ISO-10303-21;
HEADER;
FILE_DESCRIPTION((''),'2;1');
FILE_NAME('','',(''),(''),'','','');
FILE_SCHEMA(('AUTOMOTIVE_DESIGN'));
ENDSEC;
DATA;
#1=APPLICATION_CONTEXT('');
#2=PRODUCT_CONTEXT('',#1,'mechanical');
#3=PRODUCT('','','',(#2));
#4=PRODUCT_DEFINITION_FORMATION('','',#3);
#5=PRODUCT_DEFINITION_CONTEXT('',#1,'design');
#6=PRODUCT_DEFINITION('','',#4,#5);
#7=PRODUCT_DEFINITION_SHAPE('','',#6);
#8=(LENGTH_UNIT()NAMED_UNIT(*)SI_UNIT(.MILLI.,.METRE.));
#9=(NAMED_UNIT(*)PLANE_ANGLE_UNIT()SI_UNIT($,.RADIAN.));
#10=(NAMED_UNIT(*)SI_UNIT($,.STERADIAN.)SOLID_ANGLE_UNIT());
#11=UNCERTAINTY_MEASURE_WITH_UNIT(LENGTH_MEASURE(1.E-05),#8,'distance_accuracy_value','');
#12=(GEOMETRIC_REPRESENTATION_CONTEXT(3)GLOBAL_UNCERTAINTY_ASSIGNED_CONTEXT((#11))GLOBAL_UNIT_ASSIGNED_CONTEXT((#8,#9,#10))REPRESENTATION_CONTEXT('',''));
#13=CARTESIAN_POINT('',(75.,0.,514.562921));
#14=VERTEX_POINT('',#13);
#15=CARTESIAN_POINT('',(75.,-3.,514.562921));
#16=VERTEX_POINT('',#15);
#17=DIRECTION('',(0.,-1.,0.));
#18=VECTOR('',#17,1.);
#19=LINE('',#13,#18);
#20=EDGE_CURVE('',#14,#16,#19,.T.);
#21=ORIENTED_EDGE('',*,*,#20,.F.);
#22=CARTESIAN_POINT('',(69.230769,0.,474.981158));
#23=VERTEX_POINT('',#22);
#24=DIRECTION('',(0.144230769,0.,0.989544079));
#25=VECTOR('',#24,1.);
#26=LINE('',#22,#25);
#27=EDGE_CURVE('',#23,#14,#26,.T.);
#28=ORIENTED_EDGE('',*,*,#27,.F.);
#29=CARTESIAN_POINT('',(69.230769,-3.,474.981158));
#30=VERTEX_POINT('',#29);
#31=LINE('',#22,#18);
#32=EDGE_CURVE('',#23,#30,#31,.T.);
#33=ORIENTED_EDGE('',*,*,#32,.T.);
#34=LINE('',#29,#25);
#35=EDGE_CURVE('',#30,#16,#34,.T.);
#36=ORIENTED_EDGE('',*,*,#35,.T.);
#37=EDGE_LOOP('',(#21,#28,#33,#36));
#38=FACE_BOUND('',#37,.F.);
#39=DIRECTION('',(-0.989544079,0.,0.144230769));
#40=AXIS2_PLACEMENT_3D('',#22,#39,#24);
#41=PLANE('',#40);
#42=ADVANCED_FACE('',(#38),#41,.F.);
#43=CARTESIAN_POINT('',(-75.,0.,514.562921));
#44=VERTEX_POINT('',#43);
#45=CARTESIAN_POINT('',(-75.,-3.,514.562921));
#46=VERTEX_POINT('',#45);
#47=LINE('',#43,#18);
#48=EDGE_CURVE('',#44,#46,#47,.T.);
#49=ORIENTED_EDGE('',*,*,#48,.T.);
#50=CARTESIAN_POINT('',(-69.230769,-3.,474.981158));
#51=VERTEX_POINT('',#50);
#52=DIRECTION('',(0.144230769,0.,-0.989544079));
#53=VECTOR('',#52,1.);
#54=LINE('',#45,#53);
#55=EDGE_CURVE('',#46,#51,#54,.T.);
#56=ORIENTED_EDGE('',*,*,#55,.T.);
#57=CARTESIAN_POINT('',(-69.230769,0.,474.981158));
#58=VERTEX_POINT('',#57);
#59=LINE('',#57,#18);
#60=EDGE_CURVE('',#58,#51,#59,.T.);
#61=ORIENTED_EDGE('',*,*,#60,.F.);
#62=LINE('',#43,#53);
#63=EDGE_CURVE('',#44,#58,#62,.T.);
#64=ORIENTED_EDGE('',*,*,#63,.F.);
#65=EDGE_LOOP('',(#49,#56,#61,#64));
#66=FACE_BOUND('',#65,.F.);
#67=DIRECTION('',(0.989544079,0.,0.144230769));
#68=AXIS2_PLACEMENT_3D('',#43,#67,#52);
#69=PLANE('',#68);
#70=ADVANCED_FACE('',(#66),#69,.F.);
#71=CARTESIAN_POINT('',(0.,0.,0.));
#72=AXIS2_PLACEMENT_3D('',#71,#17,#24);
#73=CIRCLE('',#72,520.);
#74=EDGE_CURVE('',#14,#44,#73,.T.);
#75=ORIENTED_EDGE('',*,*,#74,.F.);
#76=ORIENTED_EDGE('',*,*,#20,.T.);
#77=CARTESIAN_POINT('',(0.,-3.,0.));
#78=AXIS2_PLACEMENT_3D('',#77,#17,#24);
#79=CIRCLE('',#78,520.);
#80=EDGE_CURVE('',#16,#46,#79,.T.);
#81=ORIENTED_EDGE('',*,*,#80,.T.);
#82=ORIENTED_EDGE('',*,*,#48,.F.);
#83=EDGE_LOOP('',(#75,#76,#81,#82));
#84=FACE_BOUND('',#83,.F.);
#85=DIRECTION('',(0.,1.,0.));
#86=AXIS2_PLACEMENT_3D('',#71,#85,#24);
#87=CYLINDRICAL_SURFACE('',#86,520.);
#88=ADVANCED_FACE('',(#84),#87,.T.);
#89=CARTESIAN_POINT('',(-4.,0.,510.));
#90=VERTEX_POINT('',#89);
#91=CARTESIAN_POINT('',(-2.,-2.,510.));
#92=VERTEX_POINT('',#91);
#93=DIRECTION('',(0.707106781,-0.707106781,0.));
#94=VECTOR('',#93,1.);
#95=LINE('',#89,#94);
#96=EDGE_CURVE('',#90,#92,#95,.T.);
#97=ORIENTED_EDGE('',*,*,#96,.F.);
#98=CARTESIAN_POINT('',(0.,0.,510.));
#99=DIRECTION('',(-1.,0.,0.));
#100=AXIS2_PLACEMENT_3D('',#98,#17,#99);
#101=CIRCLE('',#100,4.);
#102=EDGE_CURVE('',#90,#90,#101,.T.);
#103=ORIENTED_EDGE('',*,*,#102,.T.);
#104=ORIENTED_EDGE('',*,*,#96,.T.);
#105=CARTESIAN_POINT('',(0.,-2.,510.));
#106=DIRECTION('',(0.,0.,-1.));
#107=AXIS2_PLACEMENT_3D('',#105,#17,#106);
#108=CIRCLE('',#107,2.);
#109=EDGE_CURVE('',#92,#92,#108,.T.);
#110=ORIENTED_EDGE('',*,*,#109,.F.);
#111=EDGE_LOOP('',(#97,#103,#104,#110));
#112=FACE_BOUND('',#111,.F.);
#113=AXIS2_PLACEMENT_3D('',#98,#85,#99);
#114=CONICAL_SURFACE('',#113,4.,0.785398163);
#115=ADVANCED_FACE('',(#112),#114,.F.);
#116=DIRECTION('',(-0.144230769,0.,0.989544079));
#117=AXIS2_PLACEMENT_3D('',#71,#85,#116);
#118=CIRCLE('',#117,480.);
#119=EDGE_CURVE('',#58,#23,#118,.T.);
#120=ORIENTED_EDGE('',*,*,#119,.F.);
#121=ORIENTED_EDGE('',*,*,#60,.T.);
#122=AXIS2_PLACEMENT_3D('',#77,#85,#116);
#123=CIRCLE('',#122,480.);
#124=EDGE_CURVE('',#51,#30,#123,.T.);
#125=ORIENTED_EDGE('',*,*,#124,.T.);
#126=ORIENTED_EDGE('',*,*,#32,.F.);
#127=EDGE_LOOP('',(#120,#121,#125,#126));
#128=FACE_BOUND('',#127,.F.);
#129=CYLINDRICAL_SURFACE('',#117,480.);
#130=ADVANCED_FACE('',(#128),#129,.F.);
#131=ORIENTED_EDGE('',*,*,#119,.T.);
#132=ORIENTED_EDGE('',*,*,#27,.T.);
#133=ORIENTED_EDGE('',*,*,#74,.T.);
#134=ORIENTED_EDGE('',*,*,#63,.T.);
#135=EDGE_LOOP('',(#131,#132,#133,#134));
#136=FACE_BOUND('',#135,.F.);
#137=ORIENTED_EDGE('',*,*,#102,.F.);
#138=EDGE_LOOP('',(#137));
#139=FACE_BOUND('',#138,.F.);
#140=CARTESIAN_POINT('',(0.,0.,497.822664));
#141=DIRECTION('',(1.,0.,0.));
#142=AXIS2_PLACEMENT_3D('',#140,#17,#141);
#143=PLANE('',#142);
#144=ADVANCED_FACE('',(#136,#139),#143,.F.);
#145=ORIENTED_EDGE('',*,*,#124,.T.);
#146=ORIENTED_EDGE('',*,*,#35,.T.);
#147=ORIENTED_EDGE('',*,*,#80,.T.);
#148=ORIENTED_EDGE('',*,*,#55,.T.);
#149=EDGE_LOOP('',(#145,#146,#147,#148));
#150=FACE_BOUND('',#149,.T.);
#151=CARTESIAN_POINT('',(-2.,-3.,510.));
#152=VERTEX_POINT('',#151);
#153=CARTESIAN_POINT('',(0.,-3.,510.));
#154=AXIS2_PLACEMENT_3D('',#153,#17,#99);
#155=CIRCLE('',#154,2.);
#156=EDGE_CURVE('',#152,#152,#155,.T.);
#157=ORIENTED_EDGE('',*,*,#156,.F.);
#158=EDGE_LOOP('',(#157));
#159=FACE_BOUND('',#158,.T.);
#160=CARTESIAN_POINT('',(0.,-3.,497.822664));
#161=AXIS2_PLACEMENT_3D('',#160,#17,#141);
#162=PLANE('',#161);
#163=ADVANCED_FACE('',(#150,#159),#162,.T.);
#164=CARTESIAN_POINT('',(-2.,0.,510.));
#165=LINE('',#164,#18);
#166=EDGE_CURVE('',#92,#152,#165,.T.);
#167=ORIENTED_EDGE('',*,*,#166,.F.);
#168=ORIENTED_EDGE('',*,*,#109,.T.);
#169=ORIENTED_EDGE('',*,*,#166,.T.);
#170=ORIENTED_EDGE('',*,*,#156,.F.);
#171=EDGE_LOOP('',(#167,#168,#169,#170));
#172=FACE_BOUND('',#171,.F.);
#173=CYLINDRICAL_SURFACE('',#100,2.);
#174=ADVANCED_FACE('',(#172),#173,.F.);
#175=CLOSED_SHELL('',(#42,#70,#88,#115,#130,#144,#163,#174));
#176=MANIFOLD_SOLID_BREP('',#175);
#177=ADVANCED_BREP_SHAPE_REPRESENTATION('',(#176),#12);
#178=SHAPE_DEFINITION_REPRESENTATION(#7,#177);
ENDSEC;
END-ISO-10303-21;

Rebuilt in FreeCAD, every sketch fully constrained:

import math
import FreeCAD as App
import Part
import Sketcher
from FreeCAD import Vector

doc = App.newDocument("Part")
body = doc.addObject("PartDesign::Body", "Body")

# Sketch on XZ plane
sketch1 = doc.addObject("Sketcher::SketchObject", "Sketch")
body.addObject(sketch1)
sketch1.AttachmentSupport = (doc.XZ_Plane, [""])
sketch1.MapMode = "FlatFace"
sketch1.addGeometry([
    Part.ArcOfCircle(Part.Circle(Vector(0, 0, 0), Vector(0, 0, 1), 480), math.radians(81.707263), math.radians(98.292737)),
    Part.LineSegment(Vector(69.230769, 474.981158, 0), Vector(75, 514.562921, 0)),
    Part.ArcOfCircle(Part.Circle(Vector(0, 0, 0), Vector(0, 0, 1), 520), math.radians(81.707263), math.radians(98.292737)),
    Part.LineSegment(Vector(-75, 514.562921, 0), Vector(-69.230769, 474.981158, 0)),
], False)
sketch1.addConstraint([
    Sketcher.Constraint("Coincident", 0, 1, 1, 1),
    Sketcher.Constraint("Coincident", 1, 2, 2, 1),
    Sketcher.Constraint("Coincident", 2, 2, 3, 1),
    Sketcher.Constraint("Coincident", 3, 2, 0, 2),
    Sketcher.Constraint("Coincident", 0, 3, -1, 1),
    Sketcher.Constraint("Coincident", 2, 3, -1, 1),
    Sketcher.Constraint("Horizontal", 1, 2, 2, 2),
    Sketcher.Constraint("Horizontal", 0, 1, 3, 2),
    Sketcher.Constraint("Radius", 0, 480.0),
    Sketcher.Constraint("Radius", 2, 520.0),
    Sketcher.Constraint("DistanceX", -1, 1, 1, 2, 75.0),
    Sketcher.Constraint("DistanceX", 3, 2, -1, 1, 69.230769),
])
pad1 = doc.addObject("PartDesign::Pad", "Pad")
body.addObject(pad1)
pad1.Profile = sketch1
pad1.Length = 3

# Sketch on XZ plane
sketch2 = doc.addObject("Sketcher::SketchObject", "Sketch001")
body.addObject(sketch2)
sketch2.AttachmentSupport = (doc.XZ_Plane, [""])
sketch2.MapMode = "FlatFace"
sketch2.addGeometry(Part.Circle(Vector(0, 510, 0), Vector(0, 0, 1), 2), False)
sketch2.addConstraint([
    Sketcher.Constraint("PointOnObject", 0, 3, -2),
    Sketcher.Constraint("Diameter", 0, 4.0),
    Sketcher.Constraint("DistanceY", -1, 1, 0, 3, 510.0),
])
doc.recompute()
hole = doc.addObject("PartDesign::Hole", "Hole")
body.addObject(hole)
hole.Profile = sketch2
hole.ThreadType = "None"
hole.Diameter = 4
hole.DepthType = "ThroughAll"
hole.HoleCutType = "Countersink"
hole.HoleCutDiameter = 8
hole.HoleCutCountersinkAngle = 90
hole.Reversed = True

doc.recompute()
